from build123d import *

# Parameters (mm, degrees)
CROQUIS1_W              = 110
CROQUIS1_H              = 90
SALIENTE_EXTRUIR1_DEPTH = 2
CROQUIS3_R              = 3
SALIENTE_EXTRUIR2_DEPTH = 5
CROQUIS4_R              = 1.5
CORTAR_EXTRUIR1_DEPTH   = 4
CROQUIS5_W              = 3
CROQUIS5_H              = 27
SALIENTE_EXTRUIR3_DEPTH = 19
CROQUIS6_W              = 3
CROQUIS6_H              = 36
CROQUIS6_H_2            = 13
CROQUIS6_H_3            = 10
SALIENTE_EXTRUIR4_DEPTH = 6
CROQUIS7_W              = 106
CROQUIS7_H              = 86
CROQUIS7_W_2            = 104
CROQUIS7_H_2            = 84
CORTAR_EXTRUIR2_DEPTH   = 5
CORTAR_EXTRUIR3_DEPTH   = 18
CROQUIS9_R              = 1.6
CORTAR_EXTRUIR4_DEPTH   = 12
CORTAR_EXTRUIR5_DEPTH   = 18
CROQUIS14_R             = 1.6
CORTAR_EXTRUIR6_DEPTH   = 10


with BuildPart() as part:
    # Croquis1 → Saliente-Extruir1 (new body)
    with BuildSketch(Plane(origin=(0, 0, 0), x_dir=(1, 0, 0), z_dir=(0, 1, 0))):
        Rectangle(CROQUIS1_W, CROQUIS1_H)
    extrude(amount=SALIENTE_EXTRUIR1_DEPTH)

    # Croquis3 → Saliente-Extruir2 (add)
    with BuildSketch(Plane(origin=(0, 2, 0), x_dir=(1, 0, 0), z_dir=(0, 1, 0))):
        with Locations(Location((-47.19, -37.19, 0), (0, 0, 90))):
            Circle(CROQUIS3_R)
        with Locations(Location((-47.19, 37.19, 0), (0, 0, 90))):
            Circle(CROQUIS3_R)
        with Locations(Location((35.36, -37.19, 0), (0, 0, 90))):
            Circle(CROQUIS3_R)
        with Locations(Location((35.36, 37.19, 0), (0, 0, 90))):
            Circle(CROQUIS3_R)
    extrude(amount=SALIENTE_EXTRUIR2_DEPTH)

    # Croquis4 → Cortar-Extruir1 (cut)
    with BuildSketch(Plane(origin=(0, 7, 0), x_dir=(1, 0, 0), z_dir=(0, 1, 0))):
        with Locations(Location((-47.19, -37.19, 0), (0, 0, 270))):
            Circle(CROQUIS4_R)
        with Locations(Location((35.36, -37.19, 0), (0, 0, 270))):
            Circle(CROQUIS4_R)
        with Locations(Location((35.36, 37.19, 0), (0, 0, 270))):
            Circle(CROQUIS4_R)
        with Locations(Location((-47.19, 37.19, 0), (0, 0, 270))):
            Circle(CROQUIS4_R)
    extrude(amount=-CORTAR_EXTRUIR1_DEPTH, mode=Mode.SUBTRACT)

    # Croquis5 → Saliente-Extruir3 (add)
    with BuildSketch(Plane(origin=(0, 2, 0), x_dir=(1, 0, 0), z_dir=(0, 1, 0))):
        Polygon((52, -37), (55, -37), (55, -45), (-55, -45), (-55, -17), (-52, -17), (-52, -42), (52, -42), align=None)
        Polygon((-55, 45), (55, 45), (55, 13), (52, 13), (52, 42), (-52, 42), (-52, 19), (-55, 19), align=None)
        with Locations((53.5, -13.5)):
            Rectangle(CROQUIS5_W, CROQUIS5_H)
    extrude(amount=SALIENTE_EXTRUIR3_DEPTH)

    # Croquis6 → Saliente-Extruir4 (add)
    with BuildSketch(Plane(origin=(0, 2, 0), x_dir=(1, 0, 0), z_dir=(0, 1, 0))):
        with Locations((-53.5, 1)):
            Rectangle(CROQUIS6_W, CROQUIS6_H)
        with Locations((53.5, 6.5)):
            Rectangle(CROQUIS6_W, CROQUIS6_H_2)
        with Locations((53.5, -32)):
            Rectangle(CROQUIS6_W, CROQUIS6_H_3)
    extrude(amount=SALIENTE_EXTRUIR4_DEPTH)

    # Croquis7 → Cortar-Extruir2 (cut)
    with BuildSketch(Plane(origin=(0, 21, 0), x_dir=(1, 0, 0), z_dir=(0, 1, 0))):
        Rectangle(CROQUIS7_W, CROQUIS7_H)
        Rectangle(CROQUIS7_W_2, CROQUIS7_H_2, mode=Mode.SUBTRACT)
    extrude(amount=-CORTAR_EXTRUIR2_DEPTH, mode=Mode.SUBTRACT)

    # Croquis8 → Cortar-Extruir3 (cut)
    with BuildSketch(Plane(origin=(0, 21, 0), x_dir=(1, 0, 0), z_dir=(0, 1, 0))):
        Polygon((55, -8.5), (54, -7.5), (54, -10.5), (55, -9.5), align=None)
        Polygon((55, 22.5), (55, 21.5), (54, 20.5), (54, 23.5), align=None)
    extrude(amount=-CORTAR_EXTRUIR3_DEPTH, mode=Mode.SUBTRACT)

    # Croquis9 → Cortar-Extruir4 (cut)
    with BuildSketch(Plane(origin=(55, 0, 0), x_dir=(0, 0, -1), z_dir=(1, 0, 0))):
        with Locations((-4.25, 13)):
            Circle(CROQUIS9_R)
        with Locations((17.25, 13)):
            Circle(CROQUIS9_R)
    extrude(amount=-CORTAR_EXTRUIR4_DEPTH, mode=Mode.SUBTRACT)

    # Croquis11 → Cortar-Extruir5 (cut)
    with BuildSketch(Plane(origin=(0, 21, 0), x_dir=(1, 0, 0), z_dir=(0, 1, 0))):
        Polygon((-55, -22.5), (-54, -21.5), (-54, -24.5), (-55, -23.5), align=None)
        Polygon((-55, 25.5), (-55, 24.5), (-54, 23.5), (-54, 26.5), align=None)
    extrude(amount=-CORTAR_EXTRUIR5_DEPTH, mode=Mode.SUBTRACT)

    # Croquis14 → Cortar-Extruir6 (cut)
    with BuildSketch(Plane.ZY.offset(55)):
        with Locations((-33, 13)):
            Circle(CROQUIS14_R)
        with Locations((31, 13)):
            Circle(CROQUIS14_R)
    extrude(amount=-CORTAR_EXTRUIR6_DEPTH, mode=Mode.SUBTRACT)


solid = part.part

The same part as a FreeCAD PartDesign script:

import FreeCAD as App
import Part
import Sketcher
Q = App.Units.Quantity


def add_polygon(sketch, points):
    """Adds a closed chain of lines whose ends are joined by coincident constraints."""
    first, n = sketch.GeometryCount, len(points)
    for a, b in zip(points, points[1:] + points[:1]):
        sketch.addGeometry(Part.LineSegment(App.Vector(*a, 0), App.Vector(*b, 0)), False)
    for i in range(n):
        sketch.addConstraint(Sketcher.Constraint("Coincident", first + i, 2, first + (i + 1) % n, 1))

doc = App.newDocument("Part")
params = doc.addObject("Spreadsheet::Sheet", "Params")
for row, (alias, value) in enumerate([
    ("sketch1_width", "110 mm"),
    ("sketch1_height", "90 mm"),
    ("pad1_length", "2 mm"),
    ("sketch2_diameter", "6 mm"),
    ("pad2_length", "5 mm"),
    ("sketch3_diameter", "3 mm"),
    ("pocket1_length", "4 mm"),
    ("sketch4_width", "3 mm"),
    ("sketch4_width2", "104 mm"),
    ("sketch4_height", "5 mm"),
    ("sketch4_height2", "25 mm"),
    ("sketch4_height3", "28 mm"),
    ("pad3_length", "19 mm"),
    ("sketch5_width", "3 mm"),
    ("sketch5_height", "36 mm"),
    ("sketch5_height2", "13 mm"),
    ("sketch5_height3", "10 mm"),
    ("pad4_length", "6 mm"),
    ("sketch6_width", "106 mm"),
    ("sketch6_width2", "104 mm"),
    ("sketch6_height", "86 mm"),
    ("sketch6_height2", "84 mm"),
    ("pocket2_length", "5 mm"),
    ("sketch7_height", "3 mm"),
    ("sketch7_height2", "1 mm"),
    ("pocket3_length", "18 mm"),
    ("sketch8_diameter", "3.2 mm"),
    ("pocket4_length", "12 mm"),
    ("sketch9_height", "1 mm"),
    ("sketch9_height2", "3 mm"),
    ("pocket5_length", "18 mm"),
    ("sketch10_diameter", "3.2 mm"),
    ("pocket6_length", "10 mm"),
], start=1):
    params.set(f"A{row}", alias)
    params.set(f"B{row}", "=" + value)
    params.setAlias(f"B{row}", alias)

body = doc.addObject("PartDesign::Body", "Body")

sketch1 = body.newObject("Sketcher::SketchObject", "Sketch")
sketch1.AttachmentSupport = (doc.getObject("XZ_Plane"), [""])
sketch1.MapMode = "FlatFace"
add_polygon(sketch1, [(-55, -45), (-55, 45), (55, 45), (55, -45)])
sketch1.addConstraint(Sketcher.Constraint("Vertical", 0))
sketch1.addConstraint(Sketcher.Constraint("Horizontal", 1))
sketch1.addConstraint(Sketcher.Constraint("Vertical", 2))
sketch1.addConstraint(Sketcher.Constraint("Horizontal", 3))
sketch1.addConstraint(Sketcher.Constraint("Symmetric", 0, 2, 2, 2, -1, 1))
sketch1.addConstraint(Sketcher.Constraint("DistanceX", 1, 1, 1, 2, Q("110 mm")))
sketch1.addConstraint(Sketcher.Constraint("DistanceY", 0, 1, 0, 2, Q("90 mm")))
sketch1.setExpression("Constraints[9]", "Params.sketch1_width")
sketch1.setExpression("Constraints[10]", "Params.sketch1_height")
pad1 = body.newObject("PartDesign::Pad", "Pad")
pad1.Profile = sketch1
pad1.setExpression("Length", "Params.pad1_length")
pad1.Reversed = True

sketch2 = body.newObject("Sketcher::SketchObject", "Sketch001")
sketch2.AttachmentSupport = (doc.getObject("XZ_Plane"), [""])
sketch2.MapMode = "FlatFace"
sketch2.AttachmentOffset = App.Placement(App.Vector(0, 0, -2), App.Rotation())
sketch2.addGeometry(Part.Circle(App.Vector(-47.19, 37.19, 0), App.Vector(0, 0, 1), 3), False)
sketch2.addGeometry(Part.Circle(App.Vector(-47.19, -37.19, 0), App.Vector(0, 0, 1), 3), False)
sketch2.addGeometry(Part.Circle(App.Vector(35.36, 37.19, 0), App.Vector(0, 0, 1), 3), False)
sketch2.addGeometry(Part.Circle(App.Vector(35.36, -37.19, 0), App.Vector(0, 0, 1), 3), False)
sketch2.addConstraint(Sketcher.Constraint("Equal", 0, 1))
sketch2.addConstraint(Sketcher.Constraint("Equal", 1, 2))
sketch2.addConstraint(Sketcher.Constraint("Equal", 2, 3))
sketch2.addConstraint(Sketcher.Constraint("Symmetric", 0, 3, 1, 3, -1))
sketch2.addConstraint(Sketcher.Constraint("Symmetric", 2, 3, 3, 3, -1))
sketch2.addConstraint(Sketcher.Constraint("Horizontal", 0, 3, 2, 3))
sketch2.addConstraint(Sketcher.Constraint("Diameter", 0, Q("6 mm")))
sketch2.addConstraint(Sketcher.Constraint("DistanceX", 0, 3, -1, 1, Q("47.19 mm")))
sketch2.addConstraint(Sketcher.Constraint("DistanceY", -1, 1, 0, 3, Q("37.19 mm")))
sketch2.addConstraint(Sketcher.Constraint("DistanceX", -1, 1, 2, 3, Q("35.36 mm")))
sketch2.setExpression("Constraints[6]", "Params.sketch2_diameter")
pad2 = body.newObject("PartDesign::Pad", "Pad001")
pad2.Profile = sketch2
pad2.setExpression("Length", "Params.pad2_length")
pad2.Reversed = True

sketch3 = body.newObject("Sketcher::SketchObject", "Sketch002")
sketch3.AttachmentSupport = (doc.getObject("XZ_Plane"), [""])
sketch3.MapMode = "FlatFace"
sketch3.AttachmentOffset = App.Placement(App.Vector(0, 0, -7), App.Rotation())
sketch3.addGeometry(Part.Circle(App.Vector(-47.19, 37.19, 0), App.Vector(0, 0, 1), 1.5), False)
sketch3.addGeometry(Part.Circle(App.Vector(35.36, 37.19, 0), App.Vector(0, 0, 1), 1.5), False)
sketch3.addGeometry(Part.Circle(App.Vector(35.36, -37.19, 0), App.Vector(0, 0, 1), 1.5), False)
sketch3.addGeometry(Part.Circle(App.Vector(-47.19, -37.19, 0), App.Vector(0, 0, 1), 1.5), False)
sketch3.addConstraint(Sketcher.Constraint("Equal", 0, 1))
sketch3.addConstraint(Sketcher.Constraint("Equal", 1, 2))
sketch3.addConstraint(Sketcher.Constraint("Equal", 2, 3))
sketch3.addConstraint(Sketcher.Constraint("Symmetric", 1, 3, 2, 3, -1))
sketch3.addConstraint(Sketcher.Constraint("Symmetric", 0, 3, 3, 3, -1))
sketch3.addConstraint(Sketcher.Constraint("Horizontal", 0, 3, 1, 3))
sketch3.addConstraint(Sketcher.Constraint("Diameter", 0, Q("3 mm")))
sketch3.addConstraint(Sketcher.Constraint("DistanceX", 0, 3, -1, 1, Q("47.19 mm")))
sketch3.addConstraint(Sketcher.Constraint("DistanceY", -1, 1, 0, 3, Q("37.19 mm")))
sketch3.addConstraint(Sketcher.Constraint("DistanceX", -1, 1, 1, 3, Q("35.36 mm")))
sketch3.setExpression("Constraints[6]", "Params.sketch3_diameter")
pocket1 = body.newObject("PartDesign::Pocket", "Pocket")
pocket1.Profile = sketch3
pocket1.setExpression("Length", "Params.pocket1_length")
pocket1.Reversed = True

sketch4 = body.newObject("Sketcher::SketchObject", "Sketch003")
sketch4.AttachmentSupport = (doc.getObject("XZ_Plane"), [""])
sketch4.MapMode = "FlatFace"
sketch4.AttachmentOffset = App.Placement(App.Vector(0, 0, -2), App.Rotation())
add_polygon(sketch4, [(55, 37), (52, 37), (52, 42), (-52, 42), (-52, 17), (-55, 17), (-55, 45), (55, 45)])
add_polygon(sketch4, [(55, -45), (-55, -45), (-55, -19), (-52, -19), (-52, -42), (52, -42), (52, -13), (55, -13)])
add_polygon(sketch4, [(52, 0), (52, 27), (55, 27), (55, 0)])
sketch4.addConstraint(Sketcher.Constraint("Horizontal", 0))
sketch4.addConstraint(Sketcher.Constraint("Vertical", 1))
sketch4.addConstraint(Sketcher.Constraint("Horizontal", 2))
sketch4.addConstraint(Sketcher.Constraint("Vertical", 3))
sketch4.addConstraint(Sketcher.Constraint("Horizontal", 4))
sketch4.addConstraint(Sketcher.Constraint("Vertical", 5))
sketch4.addConstraint(Sketcher.Constraint("Horizontal", 6))
sketch4.addConstraint(Sketcher.Constraint("Vertical", 7))
sketch4.addConstraint(Sketcher.Constraint("Horizontal", 8))
sketch4.addConstraint(Sketcher.Constraint("Vertical", 9))
sketch4.addConstraint(Sketcher.Constraint("Horizontal", 10))
sketch4.addConstraint(Sketcher.Constraint("Vertical", 11))
sketch4.addConstraint(Sketcher.Constraint("Horizontal", 12))
sketch4.addConstraint(Sketcher.Constraint("Vertical", 13))
sketch4.addConstraint(Sketcher.Constraint("Horizontal", 14))
sketch4.addConstraint(Sketcher.Constraint("Vertical", 15))
sketch4.addConstraint(Sketcher.Constraint("Vertical", 16))
sketch4.addConstraint(Sketcher.Constraint("Horizontal", 17))
sketch4.addConstraint(Sketcher.Constraint("Vertical", 18))
sketch4.addConstraint(Sketcher.Constraint("Horizontal", 19))
sketch4.addConstraint(Sketcher.Constraint("Symmetric", 6, 2, 8, 2, -1, 1))
sketch4.addConstraint(Sketcher.Constraint("Symmetric", 1, 2, 11, 2, -1, 1))
sketch4.addConstraint(Sketcher.Constraint("PointOnObject", 18, 2, -1))
sketch4.addConstraint(Sketcher.Constraint("Vertical", 5, 2, 8, 2))
sketch4.addConstraint(Sketcher.Constraint("Vertical", 3, 2, 10, 2))
sketch4.addConstraint(Sketcher.Constraint("Vertical", 1, 2, 12, 2))
sketch4.addConstraint(Sketcher.Constraint("Vertical", 7, 2, 14, 2))
sketch4.addConstraint(Sketcher.Constraint("Vertical", 13, 2, 16, 2))
sketch4.addConstraint(Sketcher.Constraint("Vertical", 15, 2, 17, 2))
sketch4.addConstraint(Sketcher.Constraint("DistanceX", 0, 2, 0, 1, Q("3 mm")))
sketch4.addConstraint(Sketcher.Constraint("DistanceX", 2, 2, 2, 1, Q("104 mm")))
sketch4.addConstraint(Sketcher.Constraint("DistanceY", 1, 1, 1, 2, Q("5 mm")))
sketch4.addConstraint(Sketcher.Constraint("DistanceY", 3, 2, 3, 1, Q("25 mm")))
sketch4.addConstraint(Sketcher.Constraint("DistanceY", 5, 1, 5, 2, Q("28 mm")))
sketch4.addConstraint(Sketcher.Constraint("DistanceY", 9, 1, 9, 2, Q("26 mm")))
sketch4.addConstraint(Sketcher.Constraint("DistanceY", 13, 1, 13, 2, Q("29 mm")))
sketch4.addConstraint(Sketcher.Constraint("DistanceY", 16, 1, 16, 2, Q("27 mm")))
sketch4.addConstraint(Sketcher.Constraint("DistanceY", -1, 1, 0, 2, Q("37 mm")))
sketch4.setExpression("Constraints[49]", "Params.sketch4_width")
sketch4.setExpression("Constraints[50]", "Params.sketch4_width2")
sketch4.setExpression("Constraints[51]", "Params.sketch4_height")
sketch4.setExpression("Constraints[52]", "Params.sketch4_height2")
sketch4.setExpression("Constraints[53]", "Params.sketch4_height3")
pad3 = body.newObject("PartDesign::Pad", "Pad002")
pad3.Profile = sketch4
pad3.setExpression("Length", "Params.pad3_length")
pad3.Reversed = True

sketch5 = body.newObject("Sketcher::SketchObject", "Sketch004")
sketch5.AttachmentSupport = (doc.getObject("XZ_Plane"), [""])
sketch5.MapMode = "FlatFace"
sketch5.AttachmentOffset = App.Placement(App.Vector(0, 0, -2), App.Rotation())
add_polygon(sketch5, [(-55, -19), (-55, 17), (-52, 17), (-52, -19)])
add_polygon(sketch5, [(52, -13), (52, 0), (55, 0), (55, -13)])
add_polygon(sketch5, [(52, 27), (52, 37), (55, 37), (55, 27)])
sketch5.addConstraint(Sketcher.Constraint("Vertical", 0))
sketch5.addConstraint(Sketcher.Constraint("Horizontal", 1))
sketch5.addConstraint(Sketcher.Constraint("Vertical", 2))
sketch5.addConstraint(Sketcher.Constraint("Horizontal", 3))
sketch5.addConstraint(Sketcher.Constraint("Vertical", 4))
sketch5.addConstraint(Sketcher.Constraint("Horizontal", 5))
sketch5.addConstraint(Sketcher.Constraint("Vertical", 6))
sketch5.addConstraint(Sketcher.Constraint("Horizontal", 7))
sketch5.addConstraint(Sketcher.Constraint("Vertical", 8))
sketch5.addConstraint(Sketcher.Constraint("Horizontal", 9))
sketch5.addConstraint(Sketcher.Constraint("Vertical", 10))
sketch5.addConstraint(Sketcher.Constraint("Horizontal", 11))
sketch5.addConstraint(Sketcher.Constraint("PointOnObject", 4, 2, -1))
sketch5.addConstraint(Sketcher.Constraint("Vertical", 7, 2, 8, 2))
sketch5.addConstraint(Sketcher.Constraint("Vertical", 6, 2, 9, 2))
sketch5.addConstraint(Sketcher.Constraint("Equal", 3, 5))
sketch5.addConstraint(Sketcher.Constraint("DistanceX", 1, 1, 1, 2, Q("3 mm")))
sketch5.addConstraint(Sketcher.Constraint("DistanceY", 0, 1, 0, 2, Q("36 mm")))
sketch5.addConstraint(Sketcher.Constraint("DistanceY", 4, 1, 4, 2, Q("13 mm")))
sketch5.addConstraint(Sketcher.Constraint("DistanceY", 8, 1, 8, 2, Q("10 mm")))
sketch5.addConstraint(Sketcher.Constraint("DistanceX", 0, 2, -1, 1, Q("55 mm")))
sketch5.addConstraint(Sketcher.Constraint("DistanceY", -1, 1, 0, 2, Q("17 mm")))
sketch5.addConstraint(Sketcher.Constraint("DistanceX", -1, 1, 4, 2, Q("52 mm")))
sketch5.addConstraint(Sketcher.Constraint("DistanceY", -1, 1, 8, 2, Q("37 mm")))
sketch5.setExpression("Constraints[28]", "Params.sketch5_width")
sketch5.setExpression("Constraints[29]", "Params.sketch5_height")
sketch5.setExpression("Constraints[30]", "Params.sketch5_height2")
sketch5.setExpression("Constraints[31]", "Params.sketch5_height3")
pad4 = body.newObject("PartDesign::Pad", "Pad003")
pad4.Profile = sketch5
pad4.setExpression("Length", "Params.pad4_length")
pad4.Reversed = True

sketch6 = body.newObject("Sketcher::SketchObject", "Sketch005")
sketch6.AttachmentSupport = (doc.getObject("XZ_Plane"), [""])
sketch6.MapMode = "FlatFace"
sketch6.AttachmentOffset = App.Placement(App.Vector(0, 0, -21), App.Rotation())
add_polygon(sketch6, [(-53, -43), (-53, 43), (53, 43), (53, -43)])
add_polygon(sketch6, [(52, 42), (-52, 42), (-52, -42), (52, -42)])
sketch6.addConstraint(Sketcher.Constraint("Vertical", 0))
sketch6.addConstraint(Sketcher.Constraint("Horizontal", 1))
sketch6.addConstraint(Sketcher.Constraint("Vertical", 2))
sketch6.addConstraint(Sketcher.Constraint("Horizontal", 3))
sketch6.addConstraint(Sketcher.Constraint("Horizontal", 4))
sketch6.addConstraint(Sketcher.Constraint("Vertical", 5))
sketch6.addConstraint(Sketcher.Constraint("Horizontal", 6))
sketch6.addConstraint(Sketcher.Constraint("Vertical", 7))
sketch6.addConstraint(Sketcher.Constraint("Symmetric", 0, 2, 2, 2, -1, 1))
sketch6.addConstraint(Sketcher.Constraint("Symmetric", 4, 2, 6, 2, -1, 1))
sketch6.addConstraint(Sketcher.Constraint("DistanceX", 1, 1, 1, 2, Q("106 mm")))
sketch6.addConstraint(Sketcher.Constraint("DistanceX", 4, 2, 4, 1, Q("104 mm")))
sketch6.addConstraint(Sketcher.Constraint("DistanceY", 0, 1, 0, 2, Q("86 mm")))
sketch6.addConstraint(Sketcher.Constraint("DistanceY", 5, 2, 5, 1, Q("84 mm")))
sketch6.setExpression("Constraints[18]", "Params.sketch6_width")
sketch6.setExpression("Constraints[19]", "Params.sketch6_width2")
sketch6.setExpression("Constraints[20]", "Params.sketch6_height")
sketch6.setExpression("Constraints[21]", "Params.sketch6_height2")
pocket2 = body.newObject("PartDesign::Pocket", "Pocket001")
pocket2.Profile = sketch6
pocket2.setExpression("Length", "Params.pocket2_length")
pocket2.Reversed = True

sketch7 = body.newObject("Sketcher::SketchObject", "Sketch006")
sketch7.AttachmentSupport = (doc.getObject("XZ_Plane"), [""])
sketch7.MapMode = "FlatFace"
sketch7.AttachmentOffset = App.Placement(App.Vector(0, 0, -21), App.Rotation())
add_polygon(sketch7, [(55, 8.5), (54, 7.5), (54, 10.5), (55, 9.5)])
add_polygon(sketch7, [(55, -21.5), (55, -22.5), (54, -23.5), (54, -20.5)])
sketch7.addConstraint(Sketcher.Constraint("Vertical", 1))
sketch7.addConstraint(Sketcher.Constraint("Vertical", 3))
sketch7.addConstraint(Sketcher.Constraint("Vertical", 4))
sketch7.addConstraint(Sketcher.Constraint("Vertical", 6))
sketch7.addConstraint(Sketcher.Constraint("Perpendicular", 0, 2))
sketch7.addConstraint(Sketcher.Constraint("Perpendicular", 2, 5))
sketch7.addConstraint(Sketcher.Constraint("Perpendicular", 5, 7))
sketch7.addConstraint(Sketcher.Constraint("Vertical", 3, 2, 4, 2))
sketch7.addConstraint(Sketcher.Constraint("Vertical", 1, 2, 5, 2))
sketch7.addConstraint(Sketcher.Constraint("Equal", 3, 4))
sketch7.addConstraint(Sketcher.Constraint("Equal", 0, 2))
sketch7.addConstraint(Sketcher.Constraint("DistanceY", 1, 1, 1, 2, Q("3 mm")))
sketch7.addConstraint(Sketcher.Constraint("DistanceY", 3, 2, 3, 1, Q("1 mm")))
sketch7.addConstraint(Sketcher.Constraint("DistanceX", -1, 1, 0, 2, Q("54 mm")))
sketch7.addConstraint(Sketcher.Constraint("DistanceY", 4, 2, 0, 2, Q("30 mm")))
sketch7.addConstraint(Sketcher.Constraint("DistanceY", -1, 1, 0, 2, Q("7.5 mm")))
sketch7.setExpression("Constraints[19]", "Params.sketch7_height")
sketch7.setExpression("Constraints[20]", "Params.sketch7_height2")
pocket3 = body.newObject("PartDesign::Pocket", "Pocket002")
pocket3.Profile = sketch7
pocket3.setExpression("Length", "Params.pocket3_length")
pocket3.Reversed = True

sketch8 = body.newObject("Sketcher::SketchObject", "Sketch007")
sketch8.AttachmentSupport = (doc.getObject("YZ_Plane"), [""])
sketch8.MapMode = "FlatFace"
sketch8.AttachmentOffset = App.Placement(App.Vector(0, 0, 55), App.Rotation())
sketch8.addGeometry(Part.Circle(App.Vector(13, 4.25, 0), App.Vector(0, 0, 1), 1.6), False)
sketch8.addGeometry(Part.Circle(App.Vector(13, -17.25, 0), App.Vector(0, 0, 1), 1.6), False)
sketch8.addConstraint(Sketcher.Constraint("Equal", 0, 1))
sketch8.addConstraint(Sketcher.Constraint("Vertical", 0, 3, 1, 3))
sketch8.addConstraint(Sketcher.Constraint("Diameter", 0, Q("3.2 mm")))
sketch8.addConstraint(Sketcher.Constraint("DistanceX", -1, 1, 0, 3, Q("13 mm")))
sketch8.addConstraint(Sketcher.Constraint("DistanceY", 1, 3, 0, 3, Q("21.5 mm")))
sketch8.addConstraint(Sketcher.Constraint("DistanceY", -1, 1, 0, 3, Q("4.25 mm")))
sketch8.setExpression("Constraints[2]", "Params.sketch8_diameter")
pocket4 = body.newObject("PartDesign::Pocket", "Pocket003")
pocket4.Profile = sketch8
pocket4.setExpression("Length", "Params.pocket4_length")

sketch9 = body.newObject("Sketcher::SketchObject", "Sketch008")
sketch9.AttachmentSupport = (doc.getObject("XZ_Plane"), [""])
sketch9.MapMode = "FlatFace"
sketch9.AttachmentOffset = App.Placement(App.Vector(0, 0, -21), App.Rotation())
add_polygon(sketch9, [(-54, 21.5), (-55, 22.5), (-55, 23.5), (-54, 24.5)])
add_polygon(sketch9, [(-55, -25.5), (-55, -24.5), (-54, -23.5), (-54, -26.5)])
sketch9.addConstraint(Sketcher.Constraint("Vertical", 1))
sketch9.addConstraint(Sketcher.Constraint("Vertical", 3))
sketch9.addConstraint(Sketcher.Constraint("Vertical", 4))
sketch9.addConstraint(Sketcher.Constraint("Vertical", 6))
sketch9.addConstraint(Sketcher.Constraint("Perpendicular", 0, 2))
sketch9.addConstraint(Sketcher.Constraint("Parallel", 2, 5))
sketch9.addConstraint(Sketcher.Constraint("Perpendicular", 5, 7))
sketch9.addConstraint(Sketcher.Constraint("Vertical", 1, 2, 4, 2))
sketch9.addConstraint(Sketcher.Constraint("Vertical", 3, 2, 5, 2))
sketch9.addConstraint(Sketcher.Constraint("Equal", 1, 4))
sketch9.addConstraint(Sketcher.Constraint("Equal", 0, 2))
sketch9.addConstraint(Sketcher.Constraint("DistanceY", 1, 1, 1, 2, Q("1 mm")))
sketch9.addConstraint(Sketcher.Constraint("DistanceY", 3, 2, 3, 1, Q("3 mm")))
sketch9.addConstraint(Sketcher.Constraint("DistanceX", 0, 2, -1, 1, Q("55 mm")))
sketch9.addConstraint(Sketcher.Constraint("DistanceY", 4, 2, 3, 2, Q("46 mm")))
sketch9.addConstraint(Sketcher.Constraint("DistanceY", -1, 1, 0, 2, Q("22.5 mm")))
sketch9.setExpression("Constraints[19]", "Params.sketch9_height")
sketch9.setExpression("Constraints[20]", "Params.sketch9_height2")
pocket5 = body.newObject("PartDesign::Pocket", "Pocket004")
pocket5.Profile = sketch9
pocket5.setExpression("Length", "Params.pocket5_length")
pocket5.Reversed = True

sketch10 = body.newObject("Sketcher::SketchObject", "Sketch009")
sketch10.AttachmentSupport = (doc.getObject("YZ_Plane"), [""])
sketch10.MapMode = "FlatFace"
sketch10.AttachmentOffset = App.Placement(App.Vector(0, 0, -55), App.Rotation())
sketch10.addGeometry(Part.Circle(App.Vector(13, -33, 0), App.Vector(0, 0, 1), 1.6), False)
sketch10.addGeometry(Part.Circle(App.Vector(13, 31, 0), App.Vector(0, 0, 1), 1.6), False)
sketch10.addConstraint(Sketcher.Constraint("Equal", 0, 1))
sketch10.addConstraint(Sketcher.Constraint("Vertical", 0, 3, 1, 3))
sketch10.addConstraint(Sketcher.Constraint("Diameter", 0, Q("3.2 mm")))
sketch10.addConstraint(Sketcher.Constraint("DistanceX", -1, 1, 0, 3, Q("13 mm")))
sketch10.addConstraint(Sketcher.Constraint("DistanceY", 0, 3, -1, 1, Q("33 mm")))
sketch10.addConstraint(Sketcher.Constraint("DistanceY", -1, 1, 1, 3, Q("31 mm")))
sketch10.setExpression("Constraints[2]", "Params.sketch10_diameter")
pocket6 = body.newObject("PartDesign::Pocket", "Pocket005")
pocket6.Profile = sketch10
pocket6.setExpression("Length", "Params.pocket6_length")
pocket6.Reversed = True

doc.recompute()
